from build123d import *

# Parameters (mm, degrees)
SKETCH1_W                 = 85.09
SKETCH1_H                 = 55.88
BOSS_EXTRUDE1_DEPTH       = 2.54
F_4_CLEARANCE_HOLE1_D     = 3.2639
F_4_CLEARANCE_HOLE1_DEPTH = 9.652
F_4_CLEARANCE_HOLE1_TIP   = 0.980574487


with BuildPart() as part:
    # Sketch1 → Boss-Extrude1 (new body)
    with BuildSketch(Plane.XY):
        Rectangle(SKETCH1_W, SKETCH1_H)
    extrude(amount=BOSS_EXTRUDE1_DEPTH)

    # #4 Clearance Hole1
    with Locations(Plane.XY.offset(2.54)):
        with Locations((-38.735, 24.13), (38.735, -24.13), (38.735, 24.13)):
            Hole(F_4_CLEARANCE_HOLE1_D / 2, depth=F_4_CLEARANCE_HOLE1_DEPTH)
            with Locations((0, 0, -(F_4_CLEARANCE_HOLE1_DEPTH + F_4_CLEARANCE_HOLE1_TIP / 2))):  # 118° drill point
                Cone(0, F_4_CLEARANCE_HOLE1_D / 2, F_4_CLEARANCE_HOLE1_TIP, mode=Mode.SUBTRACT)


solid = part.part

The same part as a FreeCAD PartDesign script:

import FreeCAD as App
import Part
import Sketcher

V = App.Vector
Q = App.Units.Quantity


def add_polygon(sketch, points):
    """Adds a closed chain of lines whose ends are joined by coincident constraints."""
    first, n = sketch.GeometryCount, len(points)
    for a, b in zip(points, points[1:] + points[:1]):
        sketch.addGeometry(Part.LineSegment(App.Vector(*a, 0), App.Vector(*b, 0)), False)
    for i in range(n):
        sketch.addConstraint(Sketcher.Constraint("Coincident", first + i, 2, first + (i + 1) % n, 1))

doc = App.newDocument("Part")
body = doc.addObject("PartDesign::Body", "Body")

sketch1 = body.newObject("Sketcher::SketchObject", "Sketch")
sketch1.AttachmentSupport = (doc.getObject("XY_Plane"), [""])
sketch1.MapMode = "FlatFace"
add_polygon(sketch1, [(-42.545, 27.94), (-42.545, -27.94), (42.545, -27.94), (42.545, 27.94)])
sketch1.addConstraint(Sketcher.Constraint("Vertical", 0))
sketch1.addConstraint(Sketcher.Constraint("Horizontal", 1))
sketch1.addConstraint(Sketcher.Constraint("Vertical", 2))
sketch1.addConstraint(Sketcher.Constraint("Horizontal", 3))
sketch1.addConstraint(Sketcher.Constraint("Symmetric", 0, 2, 2, 2, -1, 1))
sketch1.addConstraint(Sketcher.Constraint("DistanceY", 0, 2, 0, 1, Q("2.2 in")))
sketch1.addConstraint(Sketcher.Constraint("DistanceX", 1, 1, 1, 2, Q("3.35 in")))
pad1 = body.newObject("PartDesign::Pad", "Pad")
pad1.Profile = sketch1
pad1.Length = Q("0.1 in")

sketch2 = body.newObject("Sketcher::SketchObject", "Sketch001")
sketch2.AttachmentSupport = (doc.getObject("XY_Plane"), [""])
sketch2.MapMode = "FlatFace"
sketch2.AttachmentOffset = App.Placement(V(0, 0, 0.1 * 25.4), App.Rotation())
sketch2.addGeometry(Part.Circle(V(-38.735, 24.13, 0), V(0, 0, 1), 1.63195), False)
sketch2.addGeometry(Part.Circle(V(38.735, -24.13, 0), V(0, 0, 1), 1.63195), False)
sketch2.addGeometry(Part.Circle(V(38.735, 24.13, 0), V(0, 0, 1), 1.63195), False)
sketch2.addConstraint(Sketcher.Constraint("Equal", 0, 1))
sketch2.addConstraint(Sketcher.Constraint("Equal", 1, 2))
sketch2.addConstraint(Sketcher.Constraint("Symmetric", 0, 3, 1, 3, -1, 1))
sketch2.addConstraint(Sketcher.Constraint("Symmetric", 0, 3, 2, 3, -2))
sketch2.addConstraint(Sketcher.Constraint("Diameter", 0, Q("0.1285 in")))
sketch2.addConstraint(Sketcher.Constraint("DistanceY", 1, 3, 0, 3, Q("1.9 in")))
sketch2.addConstraint(Sketcher.Constraint("DistanceX", 0, 3, 1, 3, Q("3.05 in")))
doc.recompute()
hole = body.newObject("PartDesign::Hole", "Hole")
hole.Profile = sketch2
hole.ThreadType = "None"
hole.Diameter = Q("0.1285 in")
hole.DepthType = "Dimension"
hole.Depth = Q("0.38 in")
hole.DrillPoint = "Angled"
hole.DrillPointAngle = 118

doc.recompute()
